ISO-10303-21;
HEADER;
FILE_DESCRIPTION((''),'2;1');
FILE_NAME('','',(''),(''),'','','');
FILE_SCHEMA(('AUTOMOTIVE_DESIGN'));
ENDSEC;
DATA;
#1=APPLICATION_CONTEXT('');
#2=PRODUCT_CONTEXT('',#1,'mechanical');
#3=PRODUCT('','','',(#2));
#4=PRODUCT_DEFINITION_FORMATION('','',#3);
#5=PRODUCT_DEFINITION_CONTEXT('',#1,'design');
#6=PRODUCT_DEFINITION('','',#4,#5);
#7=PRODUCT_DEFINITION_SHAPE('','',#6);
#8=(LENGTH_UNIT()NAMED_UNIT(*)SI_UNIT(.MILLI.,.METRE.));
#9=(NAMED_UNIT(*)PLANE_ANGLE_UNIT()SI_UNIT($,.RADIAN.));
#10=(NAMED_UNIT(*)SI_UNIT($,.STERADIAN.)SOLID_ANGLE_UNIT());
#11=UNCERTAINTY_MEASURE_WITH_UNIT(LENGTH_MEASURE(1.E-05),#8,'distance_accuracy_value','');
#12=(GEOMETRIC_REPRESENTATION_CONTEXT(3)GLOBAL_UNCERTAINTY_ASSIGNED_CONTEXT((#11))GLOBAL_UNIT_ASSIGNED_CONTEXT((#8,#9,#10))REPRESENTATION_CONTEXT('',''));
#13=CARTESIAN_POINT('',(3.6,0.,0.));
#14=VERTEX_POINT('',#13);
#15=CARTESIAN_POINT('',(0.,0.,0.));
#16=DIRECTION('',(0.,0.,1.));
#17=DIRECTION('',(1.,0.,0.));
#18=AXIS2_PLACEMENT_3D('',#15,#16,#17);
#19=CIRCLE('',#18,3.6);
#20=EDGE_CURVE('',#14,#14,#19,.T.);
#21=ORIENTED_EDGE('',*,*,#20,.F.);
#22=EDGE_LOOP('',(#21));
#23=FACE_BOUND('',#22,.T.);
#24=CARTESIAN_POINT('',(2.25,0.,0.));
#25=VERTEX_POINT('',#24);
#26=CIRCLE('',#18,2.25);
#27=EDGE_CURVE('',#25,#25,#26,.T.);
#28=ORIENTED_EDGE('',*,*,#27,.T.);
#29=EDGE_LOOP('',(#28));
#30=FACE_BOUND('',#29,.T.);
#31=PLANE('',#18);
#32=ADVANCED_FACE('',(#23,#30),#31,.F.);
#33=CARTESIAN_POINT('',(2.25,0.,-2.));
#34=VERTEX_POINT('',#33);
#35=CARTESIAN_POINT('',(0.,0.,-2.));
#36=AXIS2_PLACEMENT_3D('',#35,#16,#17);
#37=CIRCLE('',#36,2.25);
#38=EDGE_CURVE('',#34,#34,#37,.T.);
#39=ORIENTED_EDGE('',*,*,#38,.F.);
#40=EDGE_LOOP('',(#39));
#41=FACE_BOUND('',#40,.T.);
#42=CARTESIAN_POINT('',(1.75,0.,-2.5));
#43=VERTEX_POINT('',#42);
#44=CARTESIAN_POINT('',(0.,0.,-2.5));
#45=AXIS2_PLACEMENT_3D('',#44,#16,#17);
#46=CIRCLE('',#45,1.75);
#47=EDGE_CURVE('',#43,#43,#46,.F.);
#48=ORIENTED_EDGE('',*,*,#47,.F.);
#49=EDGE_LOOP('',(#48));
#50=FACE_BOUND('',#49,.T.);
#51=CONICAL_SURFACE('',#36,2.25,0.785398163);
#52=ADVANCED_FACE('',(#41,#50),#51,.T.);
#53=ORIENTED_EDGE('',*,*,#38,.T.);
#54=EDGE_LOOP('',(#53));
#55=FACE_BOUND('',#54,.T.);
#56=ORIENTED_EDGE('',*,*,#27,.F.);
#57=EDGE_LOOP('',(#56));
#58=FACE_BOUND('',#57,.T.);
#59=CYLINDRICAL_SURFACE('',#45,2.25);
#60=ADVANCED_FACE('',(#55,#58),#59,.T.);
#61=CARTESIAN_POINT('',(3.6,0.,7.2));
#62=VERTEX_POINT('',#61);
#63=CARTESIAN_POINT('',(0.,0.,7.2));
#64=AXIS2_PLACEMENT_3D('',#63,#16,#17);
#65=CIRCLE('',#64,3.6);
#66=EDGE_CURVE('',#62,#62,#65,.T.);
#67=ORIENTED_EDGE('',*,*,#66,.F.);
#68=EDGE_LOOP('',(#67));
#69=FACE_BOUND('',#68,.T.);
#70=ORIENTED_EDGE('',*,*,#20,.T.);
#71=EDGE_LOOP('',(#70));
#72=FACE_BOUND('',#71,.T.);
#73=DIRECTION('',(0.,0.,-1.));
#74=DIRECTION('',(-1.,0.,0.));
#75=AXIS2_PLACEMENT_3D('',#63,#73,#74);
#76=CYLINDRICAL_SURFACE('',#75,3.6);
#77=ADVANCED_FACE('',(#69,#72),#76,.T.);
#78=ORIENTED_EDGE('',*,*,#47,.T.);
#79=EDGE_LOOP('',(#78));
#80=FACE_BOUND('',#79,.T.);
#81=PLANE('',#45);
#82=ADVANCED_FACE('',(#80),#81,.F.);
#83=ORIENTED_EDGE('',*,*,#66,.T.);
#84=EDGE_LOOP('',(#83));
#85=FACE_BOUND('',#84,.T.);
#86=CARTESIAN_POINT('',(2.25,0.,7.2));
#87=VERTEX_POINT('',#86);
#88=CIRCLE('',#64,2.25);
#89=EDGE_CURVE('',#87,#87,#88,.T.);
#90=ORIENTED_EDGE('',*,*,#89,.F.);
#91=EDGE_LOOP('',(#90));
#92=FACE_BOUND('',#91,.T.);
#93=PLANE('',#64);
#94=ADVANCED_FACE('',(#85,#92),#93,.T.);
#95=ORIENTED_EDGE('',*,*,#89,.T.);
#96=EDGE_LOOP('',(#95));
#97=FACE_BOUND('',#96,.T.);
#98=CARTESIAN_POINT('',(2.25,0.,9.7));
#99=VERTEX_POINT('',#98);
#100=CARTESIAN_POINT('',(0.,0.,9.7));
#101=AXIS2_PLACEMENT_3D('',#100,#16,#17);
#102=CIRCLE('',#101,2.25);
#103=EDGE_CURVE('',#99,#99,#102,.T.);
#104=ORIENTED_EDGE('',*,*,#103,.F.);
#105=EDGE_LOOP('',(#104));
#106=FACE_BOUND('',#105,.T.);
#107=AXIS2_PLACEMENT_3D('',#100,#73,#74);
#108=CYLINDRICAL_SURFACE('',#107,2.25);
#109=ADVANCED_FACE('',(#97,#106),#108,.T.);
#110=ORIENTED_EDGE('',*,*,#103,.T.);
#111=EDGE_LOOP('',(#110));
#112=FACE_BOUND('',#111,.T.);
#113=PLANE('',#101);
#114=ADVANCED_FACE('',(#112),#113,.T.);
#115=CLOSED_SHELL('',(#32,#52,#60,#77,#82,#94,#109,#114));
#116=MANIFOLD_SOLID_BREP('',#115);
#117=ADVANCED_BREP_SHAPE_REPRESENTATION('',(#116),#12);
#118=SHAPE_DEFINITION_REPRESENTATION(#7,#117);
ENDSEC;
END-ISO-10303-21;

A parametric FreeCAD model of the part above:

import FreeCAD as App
import Part
import Sketcher


def edges_at(feature, points):
    """Names of the edges that pass closest to the given points."""
    edges = feature.Shape.Edges
    near = lambda p: min(range(len(edges)), key=lambda i: edges[i].distToShape(Part.Vertex(*p))[0])
    return sorted({f"Edge{near(p) + 1}" for p in points})

doc = App.newDocument("Part")
body = doc.addObject("PartDesign::Body", "Body")

# Sketch on XY plane
sketch1 = body.newObject("Sketcher::SketchObject", "Sketch")
sketch1.AttachmentSupport = (doc.getObject("XY_Plane"), [""])
sketch1.MapMode = "FlatFace"
sketch1.addGeometry(Part.Circle(App.Vector(0, 0, 0), App.Vector(0, 0, 1), 3.6), False)
sketch1.addConstraint(Sketcher.Constraint("Coincident", 0, 3, -1, 1))
sketch1.addConstraint(Sketcher.Constraint("Diameter", 0, 7.2))
pad1 = body.newObject("PartDesign::Pad", "Pad")
pad1.Profile = sketch1
pad1.Length = 7.2

# Sketch on XY plane
sketch2 = body.newObject("Sketcher::SketchObject", "Sketch001")
sketch2.AttachmentSupport = (doc.getObject("XY_Plane"), [""])
sketch2.MapMode = "FlatFace"
sketch2.addGeometry(Part.Circle(App.Vector(0, 0, 0), App.Vector(0, 0, 1), 2.2), False)
sketch2.addConstraint(Sketcher.Constraint("Coincident", 0, 3, -1, 1))
sketch2.addConstraint(Sketcher.Constraint("Diameter", 0, 4.5))
pad2 = body.newObject("PartDesign::Pad", "Pad001")
pad2.Profile = sketch2
pad2.Length = 2.5
pad2.Reversed = True

# Sketch on XY plane
sketch3 = body.newObject("Sketcher::SketchObject", "Sketch002")
sketch3.AttachmentSupport = (doc.getObject("XY_Plane"), [""])
sketch3.MapMode = "FlatFace"
sketch3.AttachmentOffset = App.Placement(App.Vector(0, 0, 9.7), App.Rotation())
sketch3.addGeometry(Part.Circle(App.Vector(0, 0, 0), App.Vector(0, 0, 1), 2.2), False)
sketch3.addConstraint(Sketcher.Constraint("Coincident", 0, 3, -1, 1))
sketch3.addConstraint(Sketcher.Constraint("Diameter", 0, 4.5))
pad3 = body.newObject("PartDesign::Pad", "Pad002")
pad3.Profile = sketch3
pad3.Length = 2.5
pad3.Reversed = True
doc.recompute()

chamfer = body.newObject("PartDesign::Chamfer", "Chamfer")
chamfer.Base = (pad3, edges_at(pad3, [(-2.25, 0, -2.5)]))
chamfer.Size = 0.5

doc.recompute()
